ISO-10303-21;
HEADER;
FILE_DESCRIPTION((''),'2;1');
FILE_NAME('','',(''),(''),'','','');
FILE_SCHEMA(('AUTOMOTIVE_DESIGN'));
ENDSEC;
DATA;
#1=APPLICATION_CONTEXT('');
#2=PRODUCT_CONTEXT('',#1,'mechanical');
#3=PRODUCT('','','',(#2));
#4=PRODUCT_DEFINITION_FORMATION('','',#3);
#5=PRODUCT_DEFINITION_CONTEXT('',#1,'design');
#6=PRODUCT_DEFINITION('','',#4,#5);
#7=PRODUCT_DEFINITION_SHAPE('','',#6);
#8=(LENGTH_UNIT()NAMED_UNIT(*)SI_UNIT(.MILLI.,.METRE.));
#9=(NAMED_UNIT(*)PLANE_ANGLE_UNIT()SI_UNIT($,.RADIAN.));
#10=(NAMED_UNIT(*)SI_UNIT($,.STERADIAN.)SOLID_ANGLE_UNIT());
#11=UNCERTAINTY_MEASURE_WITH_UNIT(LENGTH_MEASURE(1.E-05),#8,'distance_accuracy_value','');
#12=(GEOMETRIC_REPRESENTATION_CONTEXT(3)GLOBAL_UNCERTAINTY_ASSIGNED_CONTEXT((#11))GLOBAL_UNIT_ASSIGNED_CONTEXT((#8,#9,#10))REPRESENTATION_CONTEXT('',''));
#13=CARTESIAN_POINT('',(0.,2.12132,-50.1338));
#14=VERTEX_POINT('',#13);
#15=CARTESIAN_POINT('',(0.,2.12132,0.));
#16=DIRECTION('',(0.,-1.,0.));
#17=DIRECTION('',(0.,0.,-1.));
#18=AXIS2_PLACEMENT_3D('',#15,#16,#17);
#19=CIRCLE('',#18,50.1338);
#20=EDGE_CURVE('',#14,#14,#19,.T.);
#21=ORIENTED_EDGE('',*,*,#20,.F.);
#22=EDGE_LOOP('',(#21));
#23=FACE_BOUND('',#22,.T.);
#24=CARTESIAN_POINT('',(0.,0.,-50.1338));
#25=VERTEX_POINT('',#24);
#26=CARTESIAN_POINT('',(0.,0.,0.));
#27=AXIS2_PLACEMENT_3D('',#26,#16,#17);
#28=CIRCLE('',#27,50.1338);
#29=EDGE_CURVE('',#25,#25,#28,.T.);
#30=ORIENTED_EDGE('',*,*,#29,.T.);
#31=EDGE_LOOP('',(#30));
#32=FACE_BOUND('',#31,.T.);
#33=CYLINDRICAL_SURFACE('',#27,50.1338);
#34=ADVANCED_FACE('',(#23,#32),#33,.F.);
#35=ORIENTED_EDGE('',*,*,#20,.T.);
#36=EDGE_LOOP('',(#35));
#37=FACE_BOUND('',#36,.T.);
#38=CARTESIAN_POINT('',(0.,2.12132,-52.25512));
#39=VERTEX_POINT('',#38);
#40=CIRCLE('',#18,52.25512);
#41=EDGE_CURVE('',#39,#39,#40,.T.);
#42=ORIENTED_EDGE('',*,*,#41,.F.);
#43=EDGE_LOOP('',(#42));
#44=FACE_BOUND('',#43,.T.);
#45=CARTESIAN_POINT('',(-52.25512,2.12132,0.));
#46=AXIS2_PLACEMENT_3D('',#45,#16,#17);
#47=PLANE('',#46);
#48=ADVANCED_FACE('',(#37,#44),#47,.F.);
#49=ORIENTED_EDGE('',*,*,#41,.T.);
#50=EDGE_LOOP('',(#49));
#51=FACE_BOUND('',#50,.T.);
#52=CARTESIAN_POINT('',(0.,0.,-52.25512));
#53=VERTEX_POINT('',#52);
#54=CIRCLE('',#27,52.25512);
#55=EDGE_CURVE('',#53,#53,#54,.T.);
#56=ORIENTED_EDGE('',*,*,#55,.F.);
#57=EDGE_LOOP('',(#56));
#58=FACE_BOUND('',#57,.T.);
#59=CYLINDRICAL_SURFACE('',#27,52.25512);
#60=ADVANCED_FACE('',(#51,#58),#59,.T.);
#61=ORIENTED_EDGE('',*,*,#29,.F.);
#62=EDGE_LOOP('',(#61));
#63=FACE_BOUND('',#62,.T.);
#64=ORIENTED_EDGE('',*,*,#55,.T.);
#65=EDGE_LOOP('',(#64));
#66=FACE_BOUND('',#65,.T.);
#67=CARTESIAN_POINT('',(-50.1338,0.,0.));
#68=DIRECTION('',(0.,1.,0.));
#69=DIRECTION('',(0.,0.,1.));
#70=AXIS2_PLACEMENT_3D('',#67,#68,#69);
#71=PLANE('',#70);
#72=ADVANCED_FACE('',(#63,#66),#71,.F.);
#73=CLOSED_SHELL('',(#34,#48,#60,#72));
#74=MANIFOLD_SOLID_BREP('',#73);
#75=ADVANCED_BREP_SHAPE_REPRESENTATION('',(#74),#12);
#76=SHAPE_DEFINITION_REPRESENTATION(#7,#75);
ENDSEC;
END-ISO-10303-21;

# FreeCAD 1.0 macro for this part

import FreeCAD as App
import Part
import Sketcher


def add_polygon(sketch, points):
    """Adds a closed chain of lines whose ends are joined by coincident constraints."""
    first, n = sketch.GeometryCount, len(points)
    for a, b in zip(points, points[1:] + points[:1]):
        sketch.addGeometry(Part.LineSegment(App.Vector(*a, 0), App.Vector(*b, 0)), False)
    for i in range(n):
        sketch.addConstraint(Sketcher.Constraint("Coincident", first + i, 2, first + (i + 1) % n, 1))

doc = App.newDocument("Part")
body = doc.addObject("PartDesign::Body", "Body")

sketch1 = body.newObject("Sketcher::SketchObject", "Sketch")
sketch1.AttachmentSupport = (doc.getObject("XY_Plane"), [""])
sketch1.MapMode = "FlatFace"
add_polygon(sketch1, [(-52.25512, 2.12132), (-52.25512, 0), (-50.1338, 0), (-50.1338, 2.12132)])
sketch1.addConstraint(Sketcher.Constraint("Vertical", 0))
sketch1.addConstraint(Sketcher.Constraint("Horizontal", 1))
sketch1.addConstraint(Sketcher.Constraint("Vertical", 2))
sketch1.addConstraint(Sketcher.Constraint("Horizontal", 3))
sketch1.addConstraint(Sketcher.Constraint("PointOnObject", 0, 2, -1))
sketch1.addConstraint(Sketcher.Constraint("Equal", 3, 0))
sketch1.addConstraint(Sketcher.Constraint("DistanceX", 1, 1, 1, 2, 2.12132))
sketch1.addConstraint(Sketcher.Constraint("DistanceX", 1, 2, -1, 1, 50.1338))
revolution = body.newObject("PartDesign::Revolution", "Revolution")
revolution.Profile = sketch1
revolution.ReferenceAxis = (sketch1, ["V_Axis"])
revolution.Angle = 360

doc.recompute()
